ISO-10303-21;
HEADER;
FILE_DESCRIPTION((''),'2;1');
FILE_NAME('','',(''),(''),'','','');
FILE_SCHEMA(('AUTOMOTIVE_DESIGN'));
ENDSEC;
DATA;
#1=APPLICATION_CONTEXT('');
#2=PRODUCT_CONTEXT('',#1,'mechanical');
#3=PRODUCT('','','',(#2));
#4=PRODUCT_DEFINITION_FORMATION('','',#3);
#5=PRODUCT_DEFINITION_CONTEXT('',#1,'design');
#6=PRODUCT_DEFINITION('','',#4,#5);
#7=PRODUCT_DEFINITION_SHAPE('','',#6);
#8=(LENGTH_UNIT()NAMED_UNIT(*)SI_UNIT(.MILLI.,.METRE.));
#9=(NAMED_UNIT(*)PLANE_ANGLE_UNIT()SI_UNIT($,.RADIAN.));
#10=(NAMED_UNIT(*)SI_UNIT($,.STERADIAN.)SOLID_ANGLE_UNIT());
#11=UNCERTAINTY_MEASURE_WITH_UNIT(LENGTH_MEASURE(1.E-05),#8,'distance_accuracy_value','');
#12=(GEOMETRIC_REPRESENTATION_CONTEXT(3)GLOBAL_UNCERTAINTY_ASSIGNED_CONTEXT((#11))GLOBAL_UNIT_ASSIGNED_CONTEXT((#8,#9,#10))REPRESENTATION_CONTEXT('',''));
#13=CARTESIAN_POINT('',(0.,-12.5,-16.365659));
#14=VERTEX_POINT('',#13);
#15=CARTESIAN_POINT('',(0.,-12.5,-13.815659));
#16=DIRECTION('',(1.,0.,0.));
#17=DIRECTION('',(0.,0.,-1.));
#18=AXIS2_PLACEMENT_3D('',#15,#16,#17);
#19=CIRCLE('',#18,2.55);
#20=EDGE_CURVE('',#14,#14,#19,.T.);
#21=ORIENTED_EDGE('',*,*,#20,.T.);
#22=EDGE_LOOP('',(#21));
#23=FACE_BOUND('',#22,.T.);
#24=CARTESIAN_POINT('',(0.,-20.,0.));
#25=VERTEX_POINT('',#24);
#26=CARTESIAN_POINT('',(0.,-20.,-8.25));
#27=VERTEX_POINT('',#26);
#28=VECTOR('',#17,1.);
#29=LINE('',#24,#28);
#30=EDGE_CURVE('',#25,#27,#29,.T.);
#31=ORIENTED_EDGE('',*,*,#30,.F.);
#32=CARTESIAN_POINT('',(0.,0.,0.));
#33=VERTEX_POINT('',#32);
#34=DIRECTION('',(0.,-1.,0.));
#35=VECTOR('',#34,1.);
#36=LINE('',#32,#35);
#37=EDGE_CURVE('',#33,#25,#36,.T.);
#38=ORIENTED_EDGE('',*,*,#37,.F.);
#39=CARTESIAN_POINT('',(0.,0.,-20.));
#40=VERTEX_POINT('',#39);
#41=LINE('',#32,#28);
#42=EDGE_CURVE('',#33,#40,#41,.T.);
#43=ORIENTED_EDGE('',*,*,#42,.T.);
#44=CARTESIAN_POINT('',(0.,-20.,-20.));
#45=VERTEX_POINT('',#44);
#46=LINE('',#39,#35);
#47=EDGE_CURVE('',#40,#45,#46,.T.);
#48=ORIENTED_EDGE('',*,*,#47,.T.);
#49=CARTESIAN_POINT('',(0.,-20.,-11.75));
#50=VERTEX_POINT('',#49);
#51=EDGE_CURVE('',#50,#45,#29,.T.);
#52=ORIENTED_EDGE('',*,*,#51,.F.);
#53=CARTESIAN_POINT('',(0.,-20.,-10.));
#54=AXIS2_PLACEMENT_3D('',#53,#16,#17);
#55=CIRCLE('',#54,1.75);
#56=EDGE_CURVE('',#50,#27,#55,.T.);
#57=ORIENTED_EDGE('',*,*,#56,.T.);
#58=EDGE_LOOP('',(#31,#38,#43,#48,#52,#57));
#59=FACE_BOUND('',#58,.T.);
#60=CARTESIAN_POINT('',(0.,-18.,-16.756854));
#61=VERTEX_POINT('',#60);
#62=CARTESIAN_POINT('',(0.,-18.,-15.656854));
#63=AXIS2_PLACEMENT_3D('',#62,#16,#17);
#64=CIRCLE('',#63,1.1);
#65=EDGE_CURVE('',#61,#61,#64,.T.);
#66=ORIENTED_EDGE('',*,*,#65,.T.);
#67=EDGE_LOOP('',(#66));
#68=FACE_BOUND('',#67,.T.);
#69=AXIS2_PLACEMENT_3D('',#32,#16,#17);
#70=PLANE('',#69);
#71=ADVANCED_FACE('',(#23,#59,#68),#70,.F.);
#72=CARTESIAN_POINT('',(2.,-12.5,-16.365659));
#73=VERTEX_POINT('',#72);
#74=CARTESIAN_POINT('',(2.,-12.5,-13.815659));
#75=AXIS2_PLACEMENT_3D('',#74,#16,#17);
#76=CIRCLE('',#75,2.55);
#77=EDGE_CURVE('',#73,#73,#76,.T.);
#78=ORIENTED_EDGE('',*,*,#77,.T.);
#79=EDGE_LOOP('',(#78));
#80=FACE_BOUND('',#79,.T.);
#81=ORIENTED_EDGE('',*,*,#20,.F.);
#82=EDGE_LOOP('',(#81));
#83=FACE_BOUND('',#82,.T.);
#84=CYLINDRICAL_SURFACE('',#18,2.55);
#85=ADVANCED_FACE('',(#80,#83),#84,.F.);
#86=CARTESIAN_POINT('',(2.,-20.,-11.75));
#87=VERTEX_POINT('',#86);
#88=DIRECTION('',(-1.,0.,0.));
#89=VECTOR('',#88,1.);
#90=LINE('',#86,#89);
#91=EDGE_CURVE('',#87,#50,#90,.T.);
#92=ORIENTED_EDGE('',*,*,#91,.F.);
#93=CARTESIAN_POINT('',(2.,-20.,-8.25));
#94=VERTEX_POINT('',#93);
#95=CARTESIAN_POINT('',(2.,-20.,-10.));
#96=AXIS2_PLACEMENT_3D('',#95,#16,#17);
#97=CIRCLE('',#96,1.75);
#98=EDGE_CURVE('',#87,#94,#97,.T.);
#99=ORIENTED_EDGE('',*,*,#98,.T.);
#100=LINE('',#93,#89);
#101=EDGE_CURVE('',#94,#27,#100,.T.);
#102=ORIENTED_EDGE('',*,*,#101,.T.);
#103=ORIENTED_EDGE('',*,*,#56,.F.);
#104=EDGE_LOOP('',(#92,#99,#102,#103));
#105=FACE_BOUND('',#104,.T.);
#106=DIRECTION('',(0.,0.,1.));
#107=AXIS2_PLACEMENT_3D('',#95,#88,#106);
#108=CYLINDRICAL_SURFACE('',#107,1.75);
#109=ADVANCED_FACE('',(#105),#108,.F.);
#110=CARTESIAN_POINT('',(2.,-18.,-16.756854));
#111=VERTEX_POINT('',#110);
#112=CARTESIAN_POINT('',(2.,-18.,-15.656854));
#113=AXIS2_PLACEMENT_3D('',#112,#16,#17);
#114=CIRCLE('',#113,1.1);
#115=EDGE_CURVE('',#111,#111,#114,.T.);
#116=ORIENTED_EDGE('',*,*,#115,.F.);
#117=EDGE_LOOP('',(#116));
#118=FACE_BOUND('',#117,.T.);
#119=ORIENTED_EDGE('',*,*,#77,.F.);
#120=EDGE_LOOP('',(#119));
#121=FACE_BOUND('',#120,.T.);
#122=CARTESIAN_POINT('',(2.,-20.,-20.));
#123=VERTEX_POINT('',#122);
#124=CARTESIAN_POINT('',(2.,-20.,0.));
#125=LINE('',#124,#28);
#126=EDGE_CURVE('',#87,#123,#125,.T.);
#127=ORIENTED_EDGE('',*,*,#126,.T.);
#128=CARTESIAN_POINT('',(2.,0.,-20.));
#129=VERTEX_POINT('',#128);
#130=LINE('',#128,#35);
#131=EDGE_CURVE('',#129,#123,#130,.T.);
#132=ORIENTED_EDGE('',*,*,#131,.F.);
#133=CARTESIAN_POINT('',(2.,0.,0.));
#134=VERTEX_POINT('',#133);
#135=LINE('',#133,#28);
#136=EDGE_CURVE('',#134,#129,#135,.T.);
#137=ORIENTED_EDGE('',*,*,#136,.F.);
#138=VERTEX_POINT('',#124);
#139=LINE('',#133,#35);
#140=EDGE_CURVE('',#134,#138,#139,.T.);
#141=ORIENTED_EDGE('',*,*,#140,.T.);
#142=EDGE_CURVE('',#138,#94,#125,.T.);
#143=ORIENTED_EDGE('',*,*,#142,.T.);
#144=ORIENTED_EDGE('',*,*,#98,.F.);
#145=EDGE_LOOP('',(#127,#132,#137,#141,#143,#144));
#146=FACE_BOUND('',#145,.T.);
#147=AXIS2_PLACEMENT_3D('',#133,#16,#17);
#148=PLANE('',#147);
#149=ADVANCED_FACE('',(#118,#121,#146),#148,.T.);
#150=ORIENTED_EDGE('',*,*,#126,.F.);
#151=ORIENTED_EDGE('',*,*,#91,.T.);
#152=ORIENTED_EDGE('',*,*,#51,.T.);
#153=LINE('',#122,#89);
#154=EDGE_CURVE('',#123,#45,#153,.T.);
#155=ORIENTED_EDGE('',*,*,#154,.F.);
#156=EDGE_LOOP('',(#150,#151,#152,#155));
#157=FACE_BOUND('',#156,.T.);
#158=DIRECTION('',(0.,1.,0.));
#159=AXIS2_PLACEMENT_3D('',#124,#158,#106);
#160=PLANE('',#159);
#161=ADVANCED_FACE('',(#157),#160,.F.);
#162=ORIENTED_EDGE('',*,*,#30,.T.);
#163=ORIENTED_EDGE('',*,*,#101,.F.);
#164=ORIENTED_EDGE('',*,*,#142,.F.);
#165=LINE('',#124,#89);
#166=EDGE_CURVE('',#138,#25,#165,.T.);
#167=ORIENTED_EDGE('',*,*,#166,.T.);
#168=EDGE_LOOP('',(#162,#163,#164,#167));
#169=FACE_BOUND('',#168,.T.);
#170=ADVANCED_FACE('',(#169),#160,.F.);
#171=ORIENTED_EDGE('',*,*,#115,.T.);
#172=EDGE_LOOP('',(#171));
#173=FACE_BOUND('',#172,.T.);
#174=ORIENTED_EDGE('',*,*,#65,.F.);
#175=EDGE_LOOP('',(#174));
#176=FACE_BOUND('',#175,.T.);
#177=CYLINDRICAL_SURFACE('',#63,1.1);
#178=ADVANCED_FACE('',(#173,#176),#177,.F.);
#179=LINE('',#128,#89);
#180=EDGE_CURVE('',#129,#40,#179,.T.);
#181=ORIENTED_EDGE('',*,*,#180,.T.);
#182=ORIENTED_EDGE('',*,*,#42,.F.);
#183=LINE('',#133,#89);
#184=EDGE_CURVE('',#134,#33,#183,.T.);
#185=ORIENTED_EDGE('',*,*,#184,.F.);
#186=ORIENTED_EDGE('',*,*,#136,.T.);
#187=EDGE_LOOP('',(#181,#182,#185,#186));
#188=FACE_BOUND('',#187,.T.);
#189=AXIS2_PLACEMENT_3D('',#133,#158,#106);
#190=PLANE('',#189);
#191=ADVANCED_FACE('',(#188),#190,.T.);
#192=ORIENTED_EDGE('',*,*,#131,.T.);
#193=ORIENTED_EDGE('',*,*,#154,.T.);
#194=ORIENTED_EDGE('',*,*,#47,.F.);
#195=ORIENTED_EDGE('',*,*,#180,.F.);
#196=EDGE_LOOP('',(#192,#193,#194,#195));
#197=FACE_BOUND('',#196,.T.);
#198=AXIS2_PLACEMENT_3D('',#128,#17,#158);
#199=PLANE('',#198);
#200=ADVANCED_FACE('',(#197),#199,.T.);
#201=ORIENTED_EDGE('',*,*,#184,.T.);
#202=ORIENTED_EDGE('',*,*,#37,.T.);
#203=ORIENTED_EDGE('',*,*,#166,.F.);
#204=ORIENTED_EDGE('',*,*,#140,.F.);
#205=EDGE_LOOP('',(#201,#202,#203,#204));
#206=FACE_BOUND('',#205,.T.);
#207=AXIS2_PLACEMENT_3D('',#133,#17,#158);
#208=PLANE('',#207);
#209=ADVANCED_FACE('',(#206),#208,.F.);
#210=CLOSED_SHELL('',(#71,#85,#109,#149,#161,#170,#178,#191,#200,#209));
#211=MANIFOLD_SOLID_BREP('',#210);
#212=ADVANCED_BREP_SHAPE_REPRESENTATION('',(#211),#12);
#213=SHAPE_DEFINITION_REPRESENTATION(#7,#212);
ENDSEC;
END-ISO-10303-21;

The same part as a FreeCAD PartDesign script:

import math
import FreeCAD as App
import Part
import Sketcher

V = App.Vector

doc = App.newDocument("Part")
params = doc.addObject("Spreadsheet::Sheet", "Params")
for row, (alias, value) in enumerate([
    ("sketch1_width", "20 mm"),
    ("sketch1_radius", "1.75 mm"),
    ("pad1_length", "2 mm"),
    ("sketch2_diameter", "2.2 mm"),
    ("sketch2_diameter2", "5.1 mm"),
], start=1):
    params.set(f"A{row}", alias)
    params.set(f"B{row}", "=" + value)
    params.setAlias(f"B{row}", alias)

body = doc.addObject("PartDesign::Body", "Body")

sketch1 = body.newObject("Sketcher::SketchObject", "Sketch")
sketch1.AttachmentSupport = (doc.getObject("YZ_Plane"), [""])
sketch1.MapMode = "FlatFace"
sketch1.addGeometry([
    Part.LineSegment(V(0, -20, 0), V(0, 0, 0)),
    Part.LineSegment(V(0, 0, 0), V(-20, 0, 0)),
    Part.LineSegment(V(-20, 0, 0), V(-20, -8.2, 0)),
    Part.ArcOfCircle(Part.Circle(V(-20, -10, 0), V(0, 0, 1), 1.8), math.radians(-90), math.radians(90)),
    Part.LineSegment(V(-20, -11.8, 0), V(-20, -20, 0)),
    Part.LineSegment(V(-20, -20, 0), V(0, -20, 0)),
], False)
sketch1.addConstraint([
    Sketcher.Constraint("Coincident", 0, 2, 1, 1),
    Sketcher.Constraint("Coincident", 1, 2, 2, 1),
    Sketcher.Constraint("Coincident", 2, 2, 3, 2),
    Sketcher.Constraint("Coincident", 3, 1, 4, 1),
    Sketcher.Constraint("Coincident", 4, 2, 5, 1),
    Sketcher.Constraint("Coincident", 5, 2, 0, 1),
    Sketcher.Constraint("Vertical", 0),
    Sketcher.Constraint("Horizontal", 1),
    Sketcher.Constraint("Vertical", 2),
    Sketcher.Constraint("Vertical", 4),
    Sketcher.Constraint("Horizontal", 5),
    Sketcher.Constraint("Coincident", 0, 2, -1, 1),
    Sketcher.Constraint("Vertical", 3, 3, 1, 2),
    Sketcher.Constraint("Vertical", 2, 2, 3, 1),
    Sketcher.Constraint("Equal", 5, 0),
    Sketcher.Constraint("Equal", 2, 4),
    Sketcher.Constraint("DistanceX", 1, 2, 1, 1, 20.0),
    Sketcher.Constraint("Radius", 3, 1.75),
])
sketch1.setExpression("Constraints[16]", "Params.sketch1_width")
sketch1.setExpression("Constraints[17]", "Params.sketch1_radius")
pad1 = body.newObject("PartDesign::Pad", "Pad")
pad1.Profile = sketch1
pad1.setExpression("Length", "Params.pad1_length")

sketch2 = body.newObject("Sketcher::SketchObject", "Sketch001")
sketch2.AttachmentSupport = (doc.getObject("YZ_Plane"), [""])
sketch2.MapMode = "FlatFace"
sketch2.AttachmentOffset = App.Placement(V(0, 0, 2), App.Rotation())
sketch2.addGeometry([
    Part.Circle(V(-18, -15.7, 0), V(0, 0, 1), 1.1),
    Part.Circle(V(-12.5, -13.8, 0), V(0, 0, 1), 2.5),
], False)
sketch2.addConstraint([
    Sketcher.Constraint("Diameter", 0, 2.2),
    Sketcher.Constraint("Diameter", 1, 5.1),
    Sketcher.Constraint("DistanceX", 0, 3, -1, 1, 18.0),
    Sketcher.Constraint("DistanceX", 1, 3, -1, 1, 12.5),
    Sketcher.Constraint("DistanceY", 1, 3, -1, 1, 13.815659),
    Sketcher.Constraint("DistanceY", 0, 3, -1, 1, 15.656854),
])
sketch2.setExpression("Constraints[0]", "Params.sketch2_diameter")
sketch2.setExpression("Constraints[1]", "Params.sketch2_diameter2")
pocket1 = body.newObject("PartDesign::Pocket", "Pocket")
pocket1.Profile = sketch2
pocket1.Type = "ThroughAll"

doc.recompute()
